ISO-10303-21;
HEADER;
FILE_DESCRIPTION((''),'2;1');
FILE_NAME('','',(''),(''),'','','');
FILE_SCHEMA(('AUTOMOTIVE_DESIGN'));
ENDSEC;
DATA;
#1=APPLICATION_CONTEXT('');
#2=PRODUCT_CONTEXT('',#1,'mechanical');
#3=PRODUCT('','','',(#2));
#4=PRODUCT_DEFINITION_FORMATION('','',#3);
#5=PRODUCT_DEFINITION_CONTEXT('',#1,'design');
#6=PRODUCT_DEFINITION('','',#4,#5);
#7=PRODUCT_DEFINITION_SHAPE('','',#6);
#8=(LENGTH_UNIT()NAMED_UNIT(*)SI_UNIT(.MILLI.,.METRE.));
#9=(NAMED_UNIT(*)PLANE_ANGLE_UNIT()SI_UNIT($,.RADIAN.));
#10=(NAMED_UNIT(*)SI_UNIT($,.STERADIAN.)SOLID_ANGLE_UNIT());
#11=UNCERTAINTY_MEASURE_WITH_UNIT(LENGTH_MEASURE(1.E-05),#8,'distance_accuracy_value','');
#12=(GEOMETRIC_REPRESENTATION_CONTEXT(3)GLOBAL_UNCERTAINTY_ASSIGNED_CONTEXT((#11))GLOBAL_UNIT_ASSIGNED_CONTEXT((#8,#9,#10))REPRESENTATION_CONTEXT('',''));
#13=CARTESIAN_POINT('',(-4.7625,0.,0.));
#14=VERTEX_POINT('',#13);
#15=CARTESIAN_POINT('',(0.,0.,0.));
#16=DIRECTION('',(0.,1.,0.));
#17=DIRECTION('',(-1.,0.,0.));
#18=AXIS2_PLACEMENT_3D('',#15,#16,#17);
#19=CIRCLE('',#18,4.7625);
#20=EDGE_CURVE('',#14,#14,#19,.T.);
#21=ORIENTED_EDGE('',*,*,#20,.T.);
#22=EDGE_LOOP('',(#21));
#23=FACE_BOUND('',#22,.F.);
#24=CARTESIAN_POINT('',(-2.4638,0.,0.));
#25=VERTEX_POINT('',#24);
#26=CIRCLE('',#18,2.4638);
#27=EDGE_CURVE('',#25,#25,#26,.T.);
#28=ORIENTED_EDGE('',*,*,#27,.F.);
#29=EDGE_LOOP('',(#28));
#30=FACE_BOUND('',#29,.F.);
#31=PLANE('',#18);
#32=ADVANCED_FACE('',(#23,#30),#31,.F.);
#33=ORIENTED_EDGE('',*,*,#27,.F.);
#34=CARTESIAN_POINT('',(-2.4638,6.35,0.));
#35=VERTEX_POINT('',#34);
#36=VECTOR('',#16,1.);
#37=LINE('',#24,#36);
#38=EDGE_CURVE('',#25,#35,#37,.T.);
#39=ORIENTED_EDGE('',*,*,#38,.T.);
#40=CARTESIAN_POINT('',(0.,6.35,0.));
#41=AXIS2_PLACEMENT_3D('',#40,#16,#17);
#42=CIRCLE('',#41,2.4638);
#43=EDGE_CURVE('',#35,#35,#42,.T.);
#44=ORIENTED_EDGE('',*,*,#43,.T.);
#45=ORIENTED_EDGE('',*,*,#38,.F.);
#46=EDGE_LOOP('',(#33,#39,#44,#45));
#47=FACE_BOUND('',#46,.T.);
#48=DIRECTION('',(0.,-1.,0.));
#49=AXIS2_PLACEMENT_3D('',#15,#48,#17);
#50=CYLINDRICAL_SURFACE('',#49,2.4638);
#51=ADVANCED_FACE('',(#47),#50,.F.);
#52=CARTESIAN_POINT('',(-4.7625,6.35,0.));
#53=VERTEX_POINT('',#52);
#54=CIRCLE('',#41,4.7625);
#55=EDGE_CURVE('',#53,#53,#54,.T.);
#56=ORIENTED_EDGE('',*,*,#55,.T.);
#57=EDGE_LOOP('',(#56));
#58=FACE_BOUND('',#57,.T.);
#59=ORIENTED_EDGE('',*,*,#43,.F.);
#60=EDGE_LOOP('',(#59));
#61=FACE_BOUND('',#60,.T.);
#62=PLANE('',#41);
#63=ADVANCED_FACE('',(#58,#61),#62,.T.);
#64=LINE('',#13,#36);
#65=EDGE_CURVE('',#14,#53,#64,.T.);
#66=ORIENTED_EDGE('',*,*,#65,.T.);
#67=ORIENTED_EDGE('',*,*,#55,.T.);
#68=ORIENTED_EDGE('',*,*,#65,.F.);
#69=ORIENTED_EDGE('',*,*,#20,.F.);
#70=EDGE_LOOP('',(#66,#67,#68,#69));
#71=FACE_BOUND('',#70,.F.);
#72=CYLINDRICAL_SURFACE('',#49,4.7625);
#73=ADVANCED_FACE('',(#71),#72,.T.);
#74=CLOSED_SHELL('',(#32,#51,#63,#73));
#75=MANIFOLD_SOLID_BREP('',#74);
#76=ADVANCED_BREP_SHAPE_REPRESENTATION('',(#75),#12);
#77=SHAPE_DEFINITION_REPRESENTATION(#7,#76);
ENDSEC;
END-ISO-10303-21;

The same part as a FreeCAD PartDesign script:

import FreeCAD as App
import Part
import Sketcher
Q = App.Units.Quantity

doc = App.newDocument("Part")
body = doc.addObject("PartDesign::Body", "Body")

sketch1 = body.newObject("Sketcher::SketchObject", "Sketch")
sketch1.AttachmentSupport = (doc.getObject("XZ_Plane"), [""])
sketch1.MapMode = "FlatFace"
sketch1.addGeometry([
    Part.Circle(App.Vector(0, 0, 0), App.Vector(0, 0, 1), 4.7625),
    Part.Circle(App.Vector(0, 0, 0), App.Vector(0, 0, 1), 2.4638),
], False)
sketch1.addConstraint([
    Sketcher.Constraint("Coincident", 0, 3, -1, 1),
    Sketcher.Constraint("Coincident", 1, 3, -1, 1),
    Sketcher.Constraint("Diameter", 0, Q("0.375 in")),
    Sketcher.Constraint("Diameter", 1, Q("0.194 in")),
])
pad1 = body.newObject("PartDesign::Pad", "Pad")
pad1.Profile = sketch1
pad1.Length = Q("0.25 in")
pad1.Reversed = True

doc.recompute()
